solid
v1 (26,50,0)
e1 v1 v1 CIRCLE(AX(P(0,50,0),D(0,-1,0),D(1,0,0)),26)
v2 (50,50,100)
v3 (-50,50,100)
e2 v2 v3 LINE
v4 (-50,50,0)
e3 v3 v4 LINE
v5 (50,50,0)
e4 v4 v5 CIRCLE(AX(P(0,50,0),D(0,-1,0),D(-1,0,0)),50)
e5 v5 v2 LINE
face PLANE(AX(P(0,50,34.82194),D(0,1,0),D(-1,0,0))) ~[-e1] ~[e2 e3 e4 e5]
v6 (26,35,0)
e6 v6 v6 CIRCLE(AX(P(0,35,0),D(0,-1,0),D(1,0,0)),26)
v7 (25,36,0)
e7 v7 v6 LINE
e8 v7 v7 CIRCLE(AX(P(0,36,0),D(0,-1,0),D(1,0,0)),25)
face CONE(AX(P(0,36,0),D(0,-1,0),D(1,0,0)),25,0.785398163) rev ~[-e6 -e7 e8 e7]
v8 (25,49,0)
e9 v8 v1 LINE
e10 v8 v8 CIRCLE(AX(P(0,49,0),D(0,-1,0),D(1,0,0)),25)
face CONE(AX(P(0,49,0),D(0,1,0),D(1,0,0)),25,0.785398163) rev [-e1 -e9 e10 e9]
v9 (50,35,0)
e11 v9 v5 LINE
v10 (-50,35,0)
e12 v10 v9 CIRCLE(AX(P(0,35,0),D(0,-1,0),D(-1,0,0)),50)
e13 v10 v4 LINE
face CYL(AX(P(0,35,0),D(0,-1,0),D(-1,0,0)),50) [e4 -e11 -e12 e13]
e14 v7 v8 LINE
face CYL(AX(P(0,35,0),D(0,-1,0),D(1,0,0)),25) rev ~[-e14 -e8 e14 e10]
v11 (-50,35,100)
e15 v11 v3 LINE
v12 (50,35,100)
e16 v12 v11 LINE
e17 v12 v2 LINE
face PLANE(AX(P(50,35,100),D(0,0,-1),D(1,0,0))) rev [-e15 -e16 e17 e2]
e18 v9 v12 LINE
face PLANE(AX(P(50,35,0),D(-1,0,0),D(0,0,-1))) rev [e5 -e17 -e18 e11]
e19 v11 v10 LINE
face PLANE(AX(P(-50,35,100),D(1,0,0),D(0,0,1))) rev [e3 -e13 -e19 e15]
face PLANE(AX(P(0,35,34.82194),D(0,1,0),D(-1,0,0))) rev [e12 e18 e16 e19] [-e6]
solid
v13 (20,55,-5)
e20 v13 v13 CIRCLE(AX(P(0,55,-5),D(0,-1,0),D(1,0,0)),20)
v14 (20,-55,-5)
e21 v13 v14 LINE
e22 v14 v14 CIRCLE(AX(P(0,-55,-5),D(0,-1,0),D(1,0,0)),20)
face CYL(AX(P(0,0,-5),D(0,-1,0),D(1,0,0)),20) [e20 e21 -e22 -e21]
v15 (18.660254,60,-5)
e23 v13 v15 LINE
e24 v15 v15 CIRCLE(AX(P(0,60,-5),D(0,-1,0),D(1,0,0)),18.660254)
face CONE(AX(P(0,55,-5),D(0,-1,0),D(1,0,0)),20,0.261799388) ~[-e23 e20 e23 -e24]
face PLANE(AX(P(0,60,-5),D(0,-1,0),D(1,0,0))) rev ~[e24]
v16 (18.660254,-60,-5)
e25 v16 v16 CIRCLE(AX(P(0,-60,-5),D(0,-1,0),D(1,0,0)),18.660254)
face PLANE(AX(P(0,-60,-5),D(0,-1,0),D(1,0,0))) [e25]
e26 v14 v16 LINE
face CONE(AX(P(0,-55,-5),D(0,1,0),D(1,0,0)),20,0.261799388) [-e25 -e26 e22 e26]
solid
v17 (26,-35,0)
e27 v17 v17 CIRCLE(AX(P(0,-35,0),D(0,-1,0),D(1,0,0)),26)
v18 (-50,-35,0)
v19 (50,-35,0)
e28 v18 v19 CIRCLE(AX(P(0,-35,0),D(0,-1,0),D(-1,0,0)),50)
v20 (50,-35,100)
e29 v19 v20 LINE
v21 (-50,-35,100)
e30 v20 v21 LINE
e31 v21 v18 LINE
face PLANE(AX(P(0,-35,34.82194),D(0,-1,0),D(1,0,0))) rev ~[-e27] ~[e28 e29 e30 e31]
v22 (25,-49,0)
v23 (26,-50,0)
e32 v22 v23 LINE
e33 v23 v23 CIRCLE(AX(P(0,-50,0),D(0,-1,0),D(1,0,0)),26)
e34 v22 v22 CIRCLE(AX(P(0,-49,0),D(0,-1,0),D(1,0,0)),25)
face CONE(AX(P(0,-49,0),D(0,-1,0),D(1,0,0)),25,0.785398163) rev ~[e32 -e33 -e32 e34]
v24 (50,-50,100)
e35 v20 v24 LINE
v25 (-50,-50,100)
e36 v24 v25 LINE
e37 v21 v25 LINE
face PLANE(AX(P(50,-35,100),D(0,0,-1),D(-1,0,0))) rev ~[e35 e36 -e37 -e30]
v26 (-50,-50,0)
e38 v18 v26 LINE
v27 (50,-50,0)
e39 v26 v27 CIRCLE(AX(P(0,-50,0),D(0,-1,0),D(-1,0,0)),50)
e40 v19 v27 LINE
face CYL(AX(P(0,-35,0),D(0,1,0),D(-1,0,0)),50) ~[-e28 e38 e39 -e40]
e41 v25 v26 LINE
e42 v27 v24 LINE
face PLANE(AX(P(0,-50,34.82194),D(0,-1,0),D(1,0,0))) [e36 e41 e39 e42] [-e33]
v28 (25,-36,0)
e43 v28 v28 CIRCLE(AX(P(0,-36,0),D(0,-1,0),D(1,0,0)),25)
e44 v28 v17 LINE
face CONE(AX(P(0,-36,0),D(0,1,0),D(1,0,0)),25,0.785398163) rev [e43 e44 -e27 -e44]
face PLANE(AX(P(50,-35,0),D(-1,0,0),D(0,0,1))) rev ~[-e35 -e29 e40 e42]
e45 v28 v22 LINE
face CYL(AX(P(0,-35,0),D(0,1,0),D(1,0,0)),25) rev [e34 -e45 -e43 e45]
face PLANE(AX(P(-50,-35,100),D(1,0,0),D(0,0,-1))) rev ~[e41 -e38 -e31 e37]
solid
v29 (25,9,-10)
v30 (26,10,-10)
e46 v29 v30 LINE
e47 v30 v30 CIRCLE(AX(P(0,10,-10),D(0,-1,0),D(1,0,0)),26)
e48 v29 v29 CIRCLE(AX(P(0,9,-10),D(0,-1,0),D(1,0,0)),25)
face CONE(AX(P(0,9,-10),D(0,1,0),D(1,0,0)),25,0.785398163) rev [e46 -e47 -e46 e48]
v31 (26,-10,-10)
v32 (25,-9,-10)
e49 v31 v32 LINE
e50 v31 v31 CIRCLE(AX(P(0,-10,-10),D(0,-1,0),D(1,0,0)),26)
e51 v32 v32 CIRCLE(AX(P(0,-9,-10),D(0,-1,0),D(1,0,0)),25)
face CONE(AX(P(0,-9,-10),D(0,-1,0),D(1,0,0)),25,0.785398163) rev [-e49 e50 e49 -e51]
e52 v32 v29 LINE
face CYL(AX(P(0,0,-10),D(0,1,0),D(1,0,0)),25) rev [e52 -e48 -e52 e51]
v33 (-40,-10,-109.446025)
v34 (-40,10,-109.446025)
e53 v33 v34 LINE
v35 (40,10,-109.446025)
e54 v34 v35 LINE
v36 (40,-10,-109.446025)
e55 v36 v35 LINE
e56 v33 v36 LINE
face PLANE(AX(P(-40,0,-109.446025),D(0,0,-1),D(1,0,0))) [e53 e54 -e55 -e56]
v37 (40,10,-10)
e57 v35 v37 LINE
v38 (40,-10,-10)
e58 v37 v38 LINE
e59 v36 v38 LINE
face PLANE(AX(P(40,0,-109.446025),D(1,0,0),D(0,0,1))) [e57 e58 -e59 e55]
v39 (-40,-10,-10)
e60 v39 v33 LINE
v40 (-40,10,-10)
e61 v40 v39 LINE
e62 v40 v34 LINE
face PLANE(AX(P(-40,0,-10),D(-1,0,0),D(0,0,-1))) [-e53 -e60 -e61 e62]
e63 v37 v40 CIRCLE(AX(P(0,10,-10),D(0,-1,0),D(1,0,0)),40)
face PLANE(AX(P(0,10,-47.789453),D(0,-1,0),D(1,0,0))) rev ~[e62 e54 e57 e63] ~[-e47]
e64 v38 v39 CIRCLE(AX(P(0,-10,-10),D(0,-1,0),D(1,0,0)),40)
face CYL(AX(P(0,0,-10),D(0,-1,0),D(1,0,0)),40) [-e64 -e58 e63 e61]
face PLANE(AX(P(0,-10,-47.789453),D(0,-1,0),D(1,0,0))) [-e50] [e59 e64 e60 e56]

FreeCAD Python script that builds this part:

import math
import FreeCAD as App
import Part
import Sketcher
from FreeCAD import Vector


def edges_at(feature, points):
    """Names of the edges that pass closest to the given points."""
    edges = feature.Shape.Edges
    near = lambda p: min(range(len(edges)), key=lambda i: edges[i].distToShape(Part.Vertex(*p))[0])
    return sorted({f"Edge{near(p) + 1}" for p in points})

doc = App.newDocument("Part")
body = doc.addObject("PartDesign::Body", "Body")

# Sketch on XZ plane
sketch1 = body.newObject("Sketcher::SketchObject", "Sketch")
sketch1.AttachmentSupport = (doc.getObject("XZ_Plane"), [""])
sketch1.MapMode = "FlatFace"
sketch1.AttachmentOffset = App.Placement(Vector(0, 0, 35), App.Rotation())
sketch1.addGeometry([
    Part.LineSegment(Vector(-50, 100, 0), Vector(-50, 0, 0)),  # 0
    Part.ArcOfCircle(Part.Circle(Vector(0, 0, 0), Vector(0, 0, 1), 50), math.radians(180), math.radians(360)),  # 1
    Part.LineSegment(Vector(50, 0, 0), Vector(50, 100, 0)),  # 2
    Part.LineSegment(Vector(50, 100, 0), Vector(-50, 100, 0)),  # 3
    Part.Circle(Vector(0, 0, 0), Vector(0, 0, 1), 25),  # 4
], False)
sketch1.addConstraint([
    Sketcher.Constraint("Tangent", 0, 2, 1, 1),
    Sketcher.Constraint("Tangent", 1, 2, 2, 1),
    Sketcher.Constraint("Coincident", 2, 2, 3, 1),
    Sketcher.Constraint("Coincident", 3, 2, 0, 1),
    Sketcher.Constraint("Vertical", 0),
    Sketcher.Constraint("Vertical", 2),
    Sketcher.Constraint("Horizontal", 3),
    Sketcher.Constraint("Coincident", 1, 3, -1, 1),
    Sketcher.Constraint("Coincident", 4, 3, -1, 1),
    Sketcher.Constraint("Equal", 3, 0),
    Sketcher.Constraint("Diameter", 4, 50.0),
    Sketcher.Constraint("Radius", 1, 50.0),
])
pad1 = body.newObject("PartDesign::Pad", "Pad")
pad1.Profile = sketch1
pad1.Length = 15
doc.recompute()

chamfer = body.newObject("PartDesign::Chamfer", "Chamfer")
chamfer.Base = (pad1, edges_at(pad1, [(-25, -50, 0), (-25, -35, 0)]))
chamfer.Size = 1
body2 = doc.addObject("PartDesign::Body", "Body001")

# Sketch on XZ plane
sketch2 = body2.newObject("Sketcher::SketchObject", "Sketch001")
sketch2.AttachmentSupport = (doc.getObject("XZ_Plane001"), [""])
sketch2.MapMode = "FlatFace"
sketch2.addGeometry([
    Part.LineSegment(Vector(40, -109.446025, 0), Vector(40, -10, 0)),  # 0
    Part.ArcOfCircle(Part.Circle(Vector(0, -10, 0), Vector(0, 0, 1), 40), math.radians(0), math.radians(180)),  # 1
    Part.LineSegment(Vector(-40, -10, 0), Vector(-40, -109.446025, 0)),  # 2
    Part.LineSegment(Vector(-40, -109.446025, 0), Vector(40, -109.446025, 0)),  # 3
    Part.Circle(Vector(0, -10, 0), Vector(0, 0, 1), 25),  # 4
], False)
sketch2.addConstraint([
    Sketcher.Constraint("Tangent", 0, 2, 1, 1),
    Sketcher.Constraint("Tangent", 1, 2, 2, 1),
    Sketcher.Constraint("Coincident", 2, 2, 3, 1),
    Sketcher.Constraint("Coincident", 3, 2, 0, 1),
    Sketcher.Constraint("Vertical", 0),
    Sketcher.Constraint("Vertical", 2),
    Sketcher.Constraint("Horizontal", 3),
    Sketcher.Constraint("Coincident", 4, 3, 1, 3),
    Sketcher.Constraint("PointOnObject", 1, 3, -2),
    Sketcher.Constraint("Diameter", 4, 50.0),
    Sketcher.Constraint("Radius", 1, 40.0),
    Sketcher.Constraint("DistanceY", 1, 3, -1, 1, 10.0),
    Sketcher.Constraint("DistanceY", 0, 1, 0, 2, 99.446025),
])
pad2 = body2.newObject("PartDesign::Pad", "Pad001")
pad2.Profile = sketch2
pad2.Length = 20
pad2.Midplane = True
doc.recompute()

chamfer2 = body2.newObject("PartDesign::Chamfer", "Chamfer001")
chamfer2.Base = (pad2, edges_at(pad2, [(-25, -10, -10), (25, 0, -10), (-25, 10, -10)]))
chamfer2.Size = 1
body3 = doc.addObject("PartDesign::Body", "Body002")
doc.recompute()

mirroring = doc.addObject("Part::Mirroring", "Mirroring")
mirroring.Source = body
mirroring.Base = Vector(0, 0, 0)
mirroring.Normal = Vector(0, -1, 0)
body3.BaseFeature = mirroring
doc.recompute()
body4 = doc.addObject("PartDesign::Body", "Body003")

# Sketch on XZ plane
sketch3 = body4.newObject("Sketcher::SketchObject", "Sketch002")
sketch3.AttachmentSupport = (doc.getObject("XZ_Plane003"), [""])
sketch3.MapMode = "FlatFace"
sketch3.addGeometry(Part.Circle(Vector(0, -5, 0), Vector(0, 0, 1), 20), False)
sketch3.addConstraint([
    Sketcher.Constraint("PointOnObject", 0, 3, -2),
    Sketcher.Constraint("Diameter", 0, 40.0),
    Sketcher.Constraint("DistanceY", 0, 3, -1, 1, 5.0),
])
pad3 = body4.newObject("PartDesign::Pad", "Pad002")
pad3.Profile = sketch3
pad3.Length = 120
pad3.Midplane = True
doc.recompute()

chamfer3 = body4.newObject("PartDesign::Chamfer", "Chamfer002")
chamfer3.Base = (pad3, edges_at(pad3, [(-20, -60, -5), (-20, 60, -5)]))
chamfer3.ChamferType = "Two distances"
chamfer3.Size = 5
chamfer3.Size2 = 1.339746
mirroring.Visibility = False

doc.recompute()
